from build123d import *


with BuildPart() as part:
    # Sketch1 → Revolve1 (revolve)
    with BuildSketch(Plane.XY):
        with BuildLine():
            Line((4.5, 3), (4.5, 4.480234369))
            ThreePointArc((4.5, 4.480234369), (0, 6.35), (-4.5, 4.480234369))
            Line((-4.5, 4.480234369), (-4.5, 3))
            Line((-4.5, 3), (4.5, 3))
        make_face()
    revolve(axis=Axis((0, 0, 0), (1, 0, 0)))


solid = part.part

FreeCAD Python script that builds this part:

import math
import FreeCAD as App
import Part
import Sketcher
from FreeCAD import Vector
Q = App.Units.Quantity

doc = App.newDocument("Part")
body = doc.addObject("PartDesign::Body", "Body")

sketch1 = body.newObject("Sketcher::SketchObject", "Sketch")
sketch1.AttachmentSupport = (doc.getObject("XY_Plane"), [""])
sketch1.MapMode = "FlatFace"
sketch1.addGeometry(Part.LineSegment(Vector(4.5, 3, 0), Vector(4.5, 4.5, 0)), False)
sketch1.addGeometry(Part.ArcOfCircle(Part.Circle(Vector(0, 0, 0), Vector(0, 0, 1), 6.3), math.radians(45), math.radians(135)), False)
sketch1.addGeometry(Part.LineSegment(Vector(-4.5, 4.5, 0), Vector(-4.5, 3, 0)), False)
sketch1.addGeometry(Part.LineSegment(Vector(-4.5, 3, 0), Vector(4.5, 3, 0)), False)
sketch1.addConstraint(Sketcher.Constraint("Coincident", 0, 2, 1, 1))
sketch1.addConstraint(Sketcher.Constraint("Coincident", 1, 2, 2, 1))
sketch1.addConstraint(Sketcher.Constraint("Coincident", 2, 2, 3, 1))
sketch1.addConstraint(Sketcher.Constraint("Coincident", 3, 2, 0, 1))
sketch1.addConstraint(Sketcher.Constraint("Vertical", 0))
sketch1.addConstraint(Sketcher.Constraint("Vertical", 2))
sketch1.addConstraint(Sketcher.Constraint("Horizontal", 3))
sketch1.addConstraint(Sketcher.Constraint("Coincident", 1, 3, -1, 1))
sketch1.addConstraint(Sketcher.Constraint("Horizontal", 0, 2, 1, 2))
sketch1.addConstraint(Sketcher.Constraint("DistanceX", 3, 1, 3, 2, Q("9 mm")))
sketch1.addConstraint(Sketcher.Constraint("Radius", 1, Q("6.35 mm")))
sketch1.addConstraint(Sketcher.Constraint("DistanceY", -1, 1, 2, 2, Q("3 mm")))
revolution = body.newObject("PartDesign::Revolution", "Revolution")
revolution.Profile = sketch1
revolution.ReferenceAxis = (sketch1, ["H_Axis"])
revolution.Angle = 360

doc.recompute()
